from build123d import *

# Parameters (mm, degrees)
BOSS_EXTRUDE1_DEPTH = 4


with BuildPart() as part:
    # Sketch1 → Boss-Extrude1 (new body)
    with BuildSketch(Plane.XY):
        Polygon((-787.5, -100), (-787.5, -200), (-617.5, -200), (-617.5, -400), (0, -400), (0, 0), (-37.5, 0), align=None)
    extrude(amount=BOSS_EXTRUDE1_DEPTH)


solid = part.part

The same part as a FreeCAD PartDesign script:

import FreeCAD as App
import Part
import Sketcher
Q = App.Units.Quantity

doc = App.newDocument("Part")
body = doc.addObject("PartDesign::Body", "Body")

# Sketch on XY plane
sketch1 = body.newObject("Sketcher::SketchObject", "Sketch")
sketch1.AttachmentSupport = (doc.getObject("XY_Plane"), [""])
sketch1.MapMode = "FlatFace"
sketch1.addGeometry(Part.LineSegment(App.Vector(-787.5, -100, 0), App.Vector(-787.5, -200, 0)), False)
sketch1.addGeometry(Part.LineSegment(App.Vector(-787.5, -200, 0), App.Vector(-617.5, -200, 0)), False)
sketch1.addGeometry(Part.LineSegment(App.Vector(-617.5, -200, 0), App.Vector(-617.5, -400, 0)), False)
sketch1.addGeometry(Part.LineSegment(App.Vector(-617.5, -400, 0), App.Vector(0, -400, 0)), False)
sketch1.addGeometry(Part.LineSegment(App.Vector(0, -400, 0), App.Vector(0, 0, 0)), False)
sketch1.addGeometry(Part.LineSegment(App.Vector(0, 0, 0), App.Vector(-37.5, 0, 0)), False)
sketch1.addGeometry(Part.LineSegment(App.Vector(-37.5, 0, 0), App.Vector(-787.5, -100, 0)), False)
sketch1.addConstraint(Sketcher.Constraint("Coincident", 0, 2, 1, 1))
sketch1.addConstraint(Sketcher.Constraint("Coincident", 1, 2, 2, 1))
sketch1.addConstraint(Sketcher.Constraint("Coincident", 2, 2, 3, 1))
sketch1.addConstraint(Sketcher.Constraint("Coincident", 3, 2, 4, 1))
sketch1.addConstraint(Sketcher.Constraint("Coincident", 4, 2, 5, 1))
sketch1.addConstraint(Sketcher.Constraint("Coincident", 5, 2, 6, 1))
sketch1.addConstraint(Sketcher.Constraint("Coincident", 6, 2, 0, 1))
sketch1.addConstraint(Sketcher.Constraint("Vertical", 0))
sketch1.addConstraint(Sketcher.Constraint("Horizontal", 1))
sketch1.addConstraint(Sketcher.Constraint("Vertical", 2))
sketch1.addConstraint(Sketcher.Constraint("Horizontal", 3))
sketch1.addConstraint(Sketcher.Constraint("Vertical", 4))
sketch1.addConstraint(Sketcher.Constraint("Horizontal", 5))
sketch1.addConstraint(Sketcher.Constraint("Coincident", 4, 2, -1, 1))
sketch1.addConstraint(Sketcher.Constraint("DistanceX", 1, 1, 1, 2, Q("170 mm")))
sketch1.addConstraint(Sketcher.Constraint("DistanceY", 0, 2, 0, 1, Q("100 mm")))
sketch1.addConstraint(Sketcher.Constraint("DistanceY", 2, 2, 2, 1, Q("200 mm")))
sketch1.addConstraint(Sketcher.Constraint("DistanceY", 4, 1, 4, 2, Q("400 mm")))
sketch1.addConstraint(Sketcher.Constraint("DistanceX", 3, 1, 3, 2, Q("617.5 mm")))
sketch1.addConstraint(Sketcher.Constraint("DistanceX", 5, 2, 5, 1, Q("37.5 mm")))
pad1 = body.newObject("PartDesign::Pad", "Pad")
pad1.Profile = sketch1
pad1.Length = 4

doc.recompute()
